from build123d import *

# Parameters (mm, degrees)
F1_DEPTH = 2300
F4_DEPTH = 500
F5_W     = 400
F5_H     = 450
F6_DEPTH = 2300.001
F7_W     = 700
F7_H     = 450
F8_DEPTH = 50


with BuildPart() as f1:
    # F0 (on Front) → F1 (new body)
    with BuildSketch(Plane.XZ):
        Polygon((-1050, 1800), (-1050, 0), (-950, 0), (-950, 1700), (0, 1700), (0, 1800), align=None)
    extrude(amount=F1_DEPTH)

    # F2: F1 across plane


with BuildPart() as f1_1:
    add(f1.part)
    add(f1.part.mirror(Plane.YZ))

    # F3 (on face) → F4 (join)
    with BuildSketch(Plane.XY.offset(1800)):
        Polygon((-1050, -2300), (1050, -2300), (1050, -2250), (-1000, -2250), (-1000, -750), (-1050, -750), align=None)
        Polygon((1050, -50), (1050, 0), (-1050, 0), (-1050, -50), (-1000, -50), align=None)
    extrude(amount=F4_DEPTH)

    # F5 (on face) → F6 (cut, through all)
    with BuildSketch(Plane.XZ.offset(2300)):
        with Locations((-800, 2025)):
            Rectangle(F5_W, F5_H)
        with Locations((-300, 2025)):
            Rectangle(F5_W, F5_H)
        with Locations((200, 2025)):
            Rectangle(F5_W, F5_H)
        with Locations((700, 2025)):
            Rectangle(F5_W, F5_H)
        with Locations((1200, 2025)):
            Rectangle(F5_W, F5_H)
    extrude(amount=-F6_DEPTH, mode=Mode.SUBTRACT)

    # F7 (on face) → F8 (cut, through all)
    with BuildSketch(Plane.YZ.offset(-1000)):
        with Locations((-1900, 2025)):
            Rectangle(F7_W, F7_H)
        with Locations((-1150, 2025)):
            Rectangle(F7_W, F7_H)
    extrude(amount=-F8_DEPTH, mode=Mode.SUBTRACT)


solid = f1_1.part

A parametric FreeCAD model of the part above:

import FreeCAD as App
import Part
import Sketcher
from FreeCAD import Vector


def add_polygon(sketch, points):
    """Adds a closed chain of lines whose ends are joined by coincident constraints."""
    first, n = sketch.GeometryCount, len(points)
    for a, b in zip(points, points[1:] + points[:1]):
        sketch.addGeometry(Part.LineSegment(App.Vector(*a, 0), App.Vector(*b, 0)), False)
    for i in range(n):
        sketch.addConstraint(Sketcher.Constraint("Coincident", first + i, 2, first + (i + 1) % n, 1))

doc = App.newDocument("Part")
body = doc.addObject("PartDesign::Body", "Body")

# Sketch on XZ plane
sketch1 = body.newObject("Sketcher::SketchObject", "Sketch")
sketch1.AttachmentSupport = (doc.getObject("XZ_Plane"), [""])
sketch1.MapMode = "FlatFace"
add_polygon(sketch1, [(-1050, 1800), (-1050, 0), (-950, 0), (-950, 1700), (0, 1700), (0, 1800)])  # lines 0-5
sketch1.addConstraint([
    Sketcher.Constraint("Vertical", 0),
    Sketcher.Constraint("Horizontal", 1),
    Sketcher.Constraint("Vertical", 2),
    Sketcher.Constraint("Horizontal", 3),
    Sketcher.Constraint("Vertical", 4),
    Sketcher.Constraint("Horizontal", 5),
    Sketcher.Constraint("PointOnObject", 0, 2, -1),
    Sketcher.Constraint("PointOnObject", 3, 2, -2),
    Sketcher.Constraint("Equal", 1, 4),
    Sketcher.Constraint("DistanceX", 1, 1, 1, 2, 100.0),
    Sketcher.Constraint("DistanceX", 3, 1, 3, 2, 950.0),
    Sketcher.Constraint("DistanceY", 0, 2, 0, 1, 1800.0),
])
pad1 = body.newObject("PartDesign::Pad", "Pad")
pad1.Profile = sketch1
pad1.Length = 2300
body2 = doc.addObject("PartDesign::Body", "Body001")
doc.recompute()

body2.BaseFeature = body
doc.recompute()

mirroring = doc.addObject("Part::Mirroring", "Mirroring")
mirroring.Source = body
mirroring.Base = Vector(0, 0, 0)
mirroring.Normal = Vector(1, 0, 0)
body3 = doc.addObject("PartDesign::Body", "Body002")
body3.BaseFeature = mirroring
boolean = body2.newObject("PartDesign::Boolean", "Boolean")
boolean.Type = "Fuse"
boolean.addObjects([body3])
doc.recompute()

# Sketch on XY plane
sketch2 = body2.newObject("Sketcher::SketchObject", "Sketch001")
sketch2.AttachmentSupport = (doc.getObject("XY_Plane001"), [""])
sketch2.MapMode = "FlatFace"
sketch2.AttachmentOffset = App.Placement(Vector(0, 0, 1800), App.Rotation())
add_polygon(sketch2, [(-1050, -2300), (1050, -2300), (1050, -2250), (-1000, -2250), (-1000, -750), (-1050, -750)])  # lines 0-5
add_polygon(sketch2, [(1050, -50), (1050, 0), (-1050, 0), (-1050, -50)])  # lines 6-9
sketch2.addConstraint([
    Sketcher.Constraint("Horizontal", 0),
    Sketcher.Constraint("Vertical", 1),
    Sketcher.Constraint("Horizontal", 2),
    Sketcher.Constraint("Vertical", 3),
    Sketcher.Constraint("Horizontal", 4),
    Sketcher.Constraint("Vertical", 5),
    Sketcher.Constraint("Vertical", 6),
    Sketcher.Constraint("Horizontal", 7),
    Sketcher.Constraint("Vertical", 8),
    Sketcher.Constraint("Horizontal", 9),
    Sketcher.Constraint("Symmetric", 6, 2, 7, 2, -1, 1),
    Sketcher.Constraint("Vertical", 1, 2, 6, 2),
    Sketcher.Constraint("Vertical", 5, 2, 7, 2),
    Sketcher.Constraint("Equal", 4, 1),
    Sketcher.Constraint("Equal", 1, 6),
    Sketcher.Constraint("DistanceX", 0, 1, 0, 2, 2100.0),
    Sketcher.Constraint("DistanceX", 2, 2, 2, 1, 2050.0),
    Sketcher.Constraint("DistanceY", 3, 1, 3, 2, 1500.0),
    Sketcher.Constraint("DistanceY", 0, 2, -1, 1, 2300.0),
])
pad2 = body2.newObject("PartDesign::Pad", "Pad001")
pad2.Profile = sketch2
pad2.Length = 500

# Sketch on XZ plane
sketch3 = body2.newObject("Sketcher::SketchObject", "Sketch002")
sketch3.AttachmentSupport = (doc.getObject("XZ_Plane001"), [""])
sketch3.MapMode = "FlatFace"
sketch3.AttachmentOffset = App.Placement(Vector(0, 0, 2300), App.Rotation())
add_polygon(sketch3, [(-1000, 2250), (-1000, 1800), (-600, 1800), (-600, 2250)])  # lines 0-3
add_polygon(sketch3, [(-500, 2250), (-500, 1800), (-100, 1800), (-100, 2250)])  # lines 4-7
add_polygon(sketch3, [(0, 2250), (0, 1800), (400, 1800), (400, 2250)])  # lines 8-11
add_polygon(sketch3, [(500, 2250), (500, 1800), (900, 1800), (900, 2250)])  # lines 12-15
add_polygon(sketch3, [(1000, 2250), (1000, 1800), (1400, 1800), (1400, 2250)])  # lines 16-19
sketch3.addConstraint([
    Sketcher.Constraint("Vertical", 0),
    Sketcher.Constraint("Horizontal", 1),
    Sketcher.Constraint("Vertical", 2),
    Sketcher.Constraint("Horizontal", 3),
    Sketcher.Constraint("Vertical", 4),
    Sketcher.Constraint("Horizontal", 5),
    Sketcher.Constraint("Vertical", 6),
    Sketcher.Constraint("Horizontal", 7),
    Sketcher.Constraint("Vertical", 8),
    Sketcher.Constraint("Horizontal", 9),
    Sketcher.Constraint("Vertical", 10),
    Sketcher.Constraint("Horizontal", 11),
    Sketcher.Constraint("Vertical", 12),
    Sketcher.Constraint("Horizontal", 13),
    Sketcher.Constraint("Vertical", 14),
    Sketcher.Constraint("Horizontal", 15),
    Sketcher.Constraint("Vertical", 16),
    Sketcher.Constraint("Horizontal", 17),
    Sketcher.Constraint("Vertical", 18),
    Sketcher.Constraint("Horizontal", 19),
    Sketcher.Constraint("Symmetric", 4, 2, 12, 2, -2),
    Sketcher.Constraint("Symmetric", 0, 2, 16, 2, -2),
    Sketcher.Constraint("PointOnObject", 8, 2, -2),
    Sketcher.Constraint("Horizontal", 1, 2, 4, 2),
    Sketcher.Constraint("Horizontal", 3, 2, 6, 2),
    Sketcher.Constraint("Horizontal", 5, 2, 8, 2),
    Sketcher.Constraint("Horizontal", 7, 2, 10, 2),
    Sketcher.Constraint("Horizontal", 11, 2, 14, 2),
    Sketcher.Constraint("Horizontal", 15, 2, 18, 2),
    Sketcher.Constraint("Equal", 3, 5),
    Sketcher.Constraint("Equal", 7, 9),
    Sketcher.Constraint("Equal", 11, 13),
    Sketcher.Constraint("Equal", 15, 17),
    Sketcher.Constraint("DistanceX", 1, 1, 1, 2, 400.0),
    Sketcher.Constraint("DistanceY", 0, 2, 0, 1, 450.0),
    Sketcher.Constraint("DistanceX", 0, 2, -1, 1, 1000.0),
    Sketcher.Constraint("DistanceY", -1, 1, 0, 2, 1800.0),
    Sketcher.Constraint("DistanceX", 4, 2, -1, 1, 500.0),
])
pocket1 = body2.newObject("PartDesign::Pocket", "Pocket")
pocket1.Profile = sketch3
pocket1.Type = "ThroughAll"

# Sketch on YZ plane
sketch4 = body2.newObject("Sketcher::SketchObject", "Sketch003")
sketch4.AttachmentSupport = (doc.getObject("YZ_Plane001"), [""])
sketch4.MapMode = "FlatFace"
sketch4.AttachmentOffset = App.Placement(Vector(0, 0, -1000), App.Rotation())
add_polygon(sketch4, [(-2250, 2250), (-2250, 1800), (-1550, 1800), (-1550, 2250)])  # lines 0-3
add_polygon(sketch4, [(-1500, 2250), (-1500, 1800), (-800, 1800), (-800, 2250)])  # lines 4-7
sketch4.addConstraint([
    Sketcher.Constraint("Vertical", 0),
    Sketcher.Constraint("Horizontal", 1),
    Sketcher.Constraint("Vertical", 2),
    Sketcher.Constraint("Horizontal", 3),
    Sketcher.Constraint("Vertical", 4),
    Sketcher.Constraint("Horizontal", 5),
    Sketcher.Constraint("Vertical", 6),
    Sketcher.Constraint("Horizontal", 7),
    Sketcher.Constraint("Horizontal", 1, 2, 4, 2),
    Sketcher.Constraint("Horizontal", 3, 2, 6, 2),
    Sketcher.Constraint("Equal", 3, 5),
    Sketcher.Constraint("DistanceX", 1, 1, 1, 2, 700.0),
    Sketcher.Constraint("DistanceY", 0, 2, 0, 1, 450.0),
    Sketcher.Constraint("DistanceX", 0, 2, -1, 1, 2250.0),
    Sketcher.Constraint("DistanceY", -1, 1, 0, 2, 1800.0),
    Sketcher.Constraint("DistanceX", 4, 2, -1, 1, 1500.0),
])
pocket2 = body2.newObject("PartDesign::Pocket", "Pocket001")
pocket2.Profile = sketch4
pocket2.Type = "ThroughAll"
mirroring.Visibility = False

doc.recompute()
